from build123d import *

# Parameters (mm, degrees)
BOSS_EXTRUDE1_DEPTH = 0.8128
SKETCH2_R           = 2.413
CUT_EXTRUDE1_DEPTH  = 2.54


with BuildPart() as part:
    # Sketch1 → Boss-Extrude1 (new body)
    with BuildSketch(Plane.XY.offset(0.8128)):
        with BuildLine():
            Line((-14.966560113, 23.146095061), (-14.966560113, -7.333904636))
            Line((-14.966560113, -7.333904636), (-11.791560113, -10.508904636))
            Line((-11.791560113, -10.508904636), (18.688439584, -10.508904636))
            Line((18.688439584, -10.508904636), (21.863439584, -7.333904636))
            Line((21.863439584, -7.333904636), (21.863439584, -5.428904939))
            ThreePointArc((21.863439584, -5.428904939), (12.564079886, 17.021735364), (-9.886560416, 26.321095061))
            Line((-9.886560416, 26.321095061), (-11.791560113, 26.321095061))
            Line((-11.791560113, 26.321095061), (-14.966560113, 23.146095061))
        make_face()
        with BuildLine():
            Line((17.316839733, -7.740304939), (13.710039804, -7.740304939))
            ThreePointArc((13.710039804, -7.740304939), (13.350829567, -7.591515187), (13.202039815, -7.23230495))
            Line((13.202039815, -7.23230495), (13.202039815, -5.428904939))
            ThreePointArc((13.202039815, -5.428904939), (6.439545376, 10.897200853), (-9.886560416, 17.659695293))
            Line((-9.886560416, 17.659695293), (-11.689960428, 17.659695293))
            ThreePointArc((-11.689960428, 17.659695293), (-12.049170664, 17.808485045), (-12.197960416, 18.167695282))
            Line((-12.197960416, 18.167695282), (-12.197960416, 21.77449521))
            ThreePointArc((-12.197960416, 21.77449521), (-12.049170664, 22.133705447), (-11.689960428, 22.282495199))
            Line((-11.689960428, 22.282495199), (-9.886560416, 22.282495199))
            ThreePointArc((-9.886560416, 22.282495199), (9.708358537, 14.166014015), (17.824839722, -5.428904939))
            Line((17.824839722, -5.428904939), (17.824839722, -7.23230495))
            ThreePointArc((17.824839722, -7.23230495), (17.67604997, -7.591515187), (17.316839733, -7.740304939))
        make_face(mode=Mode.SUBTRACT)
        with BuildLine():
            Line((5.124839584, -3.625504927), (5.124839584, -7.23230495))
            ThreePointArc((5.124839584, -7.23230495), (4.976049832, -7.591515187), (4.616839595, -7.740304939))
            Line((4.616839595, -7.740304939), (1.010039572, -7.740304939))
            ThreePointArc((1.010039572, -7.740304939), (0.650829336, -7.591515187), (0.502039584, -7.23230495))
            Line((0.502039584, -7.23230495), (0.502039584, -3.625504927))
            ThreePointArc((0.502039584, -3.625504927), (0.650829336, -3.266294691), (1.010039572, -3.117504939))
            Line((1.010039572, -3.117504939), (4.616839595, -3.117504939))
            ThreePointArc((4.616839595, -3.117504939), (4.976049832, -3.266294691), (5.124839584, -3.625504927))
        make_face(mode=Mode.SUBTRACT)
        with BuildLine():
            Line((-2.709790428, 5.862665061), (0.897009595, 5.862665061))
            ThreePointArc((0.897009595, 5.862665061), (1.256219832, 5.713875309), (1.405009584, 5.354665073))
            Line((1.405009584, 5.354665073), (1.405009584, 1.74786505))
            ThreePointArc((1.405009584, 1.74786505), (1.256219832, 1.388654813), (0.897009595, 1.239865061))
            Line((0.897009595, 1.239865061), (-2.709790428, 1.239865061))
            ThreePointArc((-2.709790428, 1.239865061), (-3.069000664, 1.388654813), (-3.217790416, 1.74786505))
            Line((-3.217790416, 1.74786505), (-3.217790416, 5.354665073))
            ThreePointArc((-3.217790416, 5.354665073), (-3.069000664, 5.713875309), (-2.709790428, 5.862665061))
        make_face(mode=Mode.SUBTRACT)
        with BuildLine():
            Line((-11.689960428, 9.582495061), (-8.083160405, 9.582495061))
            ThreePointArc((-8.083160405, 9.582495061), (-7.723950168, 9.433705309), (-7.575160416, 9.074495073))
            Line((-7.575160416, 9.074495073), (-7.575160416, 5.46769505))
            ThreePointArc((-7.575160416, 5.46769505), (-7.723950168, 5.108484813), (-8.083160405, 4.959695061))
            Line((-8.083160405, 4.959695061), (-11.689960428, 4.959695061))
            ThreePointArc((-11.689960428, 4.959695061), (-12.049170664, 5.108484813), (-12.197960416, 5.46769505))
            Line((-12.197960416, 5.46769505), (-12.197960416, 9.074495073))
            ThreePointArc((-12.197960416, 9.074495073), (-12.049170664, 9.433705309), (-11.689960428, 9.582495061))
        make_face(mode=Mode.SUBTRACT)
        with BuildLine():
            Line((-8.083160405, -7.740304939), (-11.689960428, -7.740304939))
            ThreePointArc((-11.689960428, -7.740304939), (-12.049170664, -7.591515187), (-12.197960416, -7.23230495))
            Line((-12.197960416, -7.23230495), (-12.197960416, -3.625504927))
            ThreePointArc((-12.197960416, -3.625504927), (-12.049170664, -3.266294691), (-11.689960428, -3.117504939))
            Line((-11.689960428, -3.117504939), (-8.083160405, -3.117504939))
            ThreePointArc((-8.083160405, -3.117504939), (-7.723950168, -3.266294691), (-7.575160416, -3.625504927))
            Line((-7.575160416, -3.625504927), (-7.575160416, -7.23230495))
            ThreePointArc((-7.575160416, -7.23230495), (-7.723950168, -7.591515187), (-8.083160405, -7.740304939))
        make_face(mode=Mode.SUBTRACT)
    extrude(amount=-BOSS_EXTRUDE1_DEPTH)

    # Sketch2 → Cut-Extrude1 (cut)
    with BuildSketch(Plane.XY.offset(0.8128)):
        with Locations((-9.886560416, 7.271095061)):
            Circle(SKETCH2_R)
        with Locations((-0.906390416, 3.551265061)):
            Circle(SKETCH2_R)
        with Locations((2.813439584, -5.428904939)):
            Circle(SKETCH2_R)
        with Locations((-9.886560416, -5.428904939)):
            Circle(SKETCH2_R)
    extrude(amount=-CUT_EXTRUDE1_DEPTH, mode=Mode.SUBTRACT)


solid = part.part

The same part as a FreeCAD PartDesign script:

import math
import FreeCAD as App
import Part
import Sketcher
Q = App.Units.Quantity

doc = App.newDocument("Part")
body = doc.addObject("PartDesign::Body", "Body")

# Sketch on XY plane
sketch1 = body.newObject("Sketcher::SketchObject", "Sketch")
sketch1.AttachmentSupport = (doc.getObject("XY_Plane"), [""])
sketch1.MapMode = "FlatFace"
sketch1.AttachmentOffset = App.Placement(App.Vector(0, 0, 0.032 * 25.4), App.Rotation())
sketch1.addGeometry(Part.LineSegment(App.Vector(-15, 23.1, 0), App.Vector(-15, -7.3, 0)), False)
sketch1.addGeometry(Part.LineSegment(App.Vector(-15, -7.3, 0), App.Vector(-11.8, -10.5, 0)), False)
sketch1.addGeometry(Part.LineSegment(App.Vector(-11.8, -10.5, 0), App.Vector(18.7, -10.5, 0)), False)
sketch1.addGeometry(Part.LineSegment(App.Vector(18.7, -10.5, 0), App.Vector(21.9, -7.3, 0)), False)
sketch1.addGeometry(Part.LineSegment(App.Vector(21.9, -7.3, 0), App.Vector(21.9, -5.4, 0)), False)
sketch1.addGeometry(Part.ArcOfCircle(Part.Circle(App.Vector(-9.9, -5.4, 0), App.Vector(0, 0, 1), 31.8), math.radians(0), math.radians(90)), False)
sketch1.addGeometry(Part.LineSegment(App.Vector(-9.9, 26.3, 0), App.Vector(-11.8, 26.3, 0)), False)
sketch1.addGeometry(Part.LineSegment(App.Vector(-11.8, 26.3, 0), App.Vector(-15, 23.1, 0)), False)
sketch1.addGeometry(Part.ArcOfCircle(Part.Circle(App.Vector(-8.1, -7.2, 0), App.Vector(0, 0, 1), 0.5), math.radians(-90), math.radians(0)), False)
sketch1.addGeometry(Part.LineSegment(App.Vector(-8.1, -7.7, 0), App.Vector(-11.7, -7.7, 0)), False)
sketch1.addGeometry(Part.ArcOfCircle(Part.Circle(App.Vector(-11.7, -7.2, 0), App.Vector(0, 0, 1), 0.5), math.radians(180), math.radians(270)), False)
sketch1.addGeometry(Part.LineSegment(App.Vector(-12.2, -7.2, 0), App.Vector(-12.2, -3.6, 0)), False)
sketch1.addGeometry(Part.ArcOfCircle(Part.Circle(App.Vector(-11.7, -3.6, 0), App.Vector(0, 0, 1), 0.5), math.radians(90), math.radians(180)), False)
sketch1.addGeometry(Part.LineSegment(App.Vector(-11.7, -3.1, 0), App.Vector(-8.1, -3.1, 0)), False)
sketch1.addGeometry(Part.ArcOfCircle(Part.Circle(App.Vector(-8.1, -3.6, 0), App.Vector(0, 0, 1), 0.5), math.radians(0), math.radians(90)), False)
sketch1.addGeometry(Part.LineSegment(App.Vector(-7.6, -3.6, 0), App.Vector(-7.6, -7.2, 0)), False)
sketch1.addGeometry(Part.ArcOfCircle(Part.Circle(App.Vector(4.6, -3.6, 0), App.Vector(0, 0, 1), 0.5), math.radians(0), math.radians(90)), False)
sketch1.addGeometry(Part.LineSegment(App.Vector(5.1, -3.6, 0), App.Vector(5.1, -7.2, 0)), False)
sketch1.addGeometry(Part.ArcOfCircle(Part.Circle(App.Vector(4.6, -7.2, 0), App.Vector(0, 0, 1), 0.5), math.radians(-90), math.radians(0)), False)
sketch1.addGeometry(Part.LineSegment(App.Vector(4.6, -7.7, 0), App.Vector(1, -7.7, 0)), False)
sketch1.addGeometry(Part.ArcOfCircle(Part.Circle(App.Vector(1, -7.2, 0), App.Vector(0, 0, 1), 0.5), math.radians(180), math.radians(270)), False)
sketch1.addGeometry(Part.LineSegment(App.Vector(0.5, -7.2, 0), App.Vector(0.5, -3.6, 0)), False)
sketch1.addGeometry(Part.ArcOfCircle(Part.Circle(App.Vector(1, -3.6, 0), App.Vector(0, 0, 1), 0.5), math.radians(90), math.radians(180)), False)
sketch1.addGeometry(Part.LineSegment(App.Vector(1, -3.1, 0), App.Vector(4.6, -3.1, 0)), False)
sketch1.addGeometry(Part.ArcOfCircle(Part.Circle(App.Vector(-11.7, 9.1, 0), App.Vector(0, 0, 1), 0.5), math.radians(90), math.radians(180)), False)
sketch1.addGeometry(Part.LineSegment(App.Vector(-11.7, 9.6, 0), App.Vector(-8.1, 9.6, 0)), False)
sketch1.addGeometry(Part.ArcOfCircle(Part.Circle(App.Vector(-8.1, 9.1, 0), App.Vector(0, 0, 1), 0.5), math.radians(0), math.radians(90)), False)
sketch1.addGeometry(Part.LineSegment(App.Vector(-7.6, 9.1, 0), App.Vector(-7.6, 5.5, 0)), False)
sketch1.addGeometry(Part.ArcOfCircle(Part.Circle(App.Vector(-8.1, 5.5, 0), App.Vector(0, 0, 1), 0.5), math.radians(-90), math.radians(0)), False)
sketch1.addGeometry(Part.LineSegment(App.Vector(-8.1, 5, 0), App.Vector(-11.7, 5, 0)), False)
sketch1.addGeometry(Part.ArcOfCircle(Part.Circle(App.Vector(-11.7, 5.5, 0), App.Vector(0, 0, 1), 0.5), math.radians(180), math.radians(270)), False)
sketch1.addGeometry(Part.LineSegment(App.Vector(-12.2, 5.5, 0), App.Vector(-12.2, 9.1, 0)), False)
sketch1.addGeometry(Part.ArcOfCircle(Part.Circle(App.Vector(-2.7, 5.4, 0), App.Vector(0, 0, 1), 0.5), math.radians(90), math.radians(180)), False)
sketch1.addGeometry(Part.LineSegment(App.Vector(-2.7, 5.9, 0), App.Vector(0.9, 5.9, 0)), False)
sketch1.addGeometry(Part.ArcOfCircle(Part.Circle(App.Vector(0.9, 5.4, 0), App.Vector(0, 0, 1), 0.5), math.radians(0), math.radians(90)), False)
sketch1.addGeometry(Part.LineSegment(App.Vector(1.4, 5.4, 0), App.Vector(1.4, 1.7, 0)), False)
sketch1.addGeometry(Part.ArcOfCircle(Part.Circle(App.Vector(0.9, 1.7, 0), App.Vector(0, 0, 1), 0.5), math.radians(-90), math.radians(0)), False)
sketch1.addGeometry(Part.LineSegment(App.Vector(0.9, 1.2, 0), App.Vector(-2.7, 1.2, 0)), False)
sketch1.addGeometry(Part.ArcOfCircle(Part.Circle(App.Vector(-2.7, 1.7, 0), App.Vector(0, 0, 1), 0.5), math.radians(180), math.radians(270)), False)
sketch1.addGeometry(Part.LineSegment(App.Vector(-3.2, 1.7, 0), App.Vector(-3.2, 5.4, 0)), False)
sketch1.addGeometry(Part.ArcOfCircle(Part.Circle(App.Vector(17.3, -7.2, 0), App.Vector(0, 0, 1), 0.5), math.radians(-90), math.radians(0)), False)
sketch1.addGeometry(Part.LineSegment(App.Vector(17.3, -7.7, 0), App.Vector(13.7, -7.7, 0)), False)
sketch1.addGeometry(Part.ArcOfCircle(Part.Circle(App.Vector(13.7, -7.2, 0), App.Vector(0, 0, 1), 0.5), math.radians(180), math.radians(270)), False)
sketch1.addGeometry(Part.LineSegment(App.Vector(13.2, -7.2, 0), App.Vector(13.2, -5.4, 0)), False)
sketch1.addGeometry(Part.ArcOfCircle(Part.Circle(App.Vector(-9.9, -5.4, 0), App.Vector(0, 0, 1), 23.1), math.radians(0), math.radians(90)), False)
sketch1.addGeometry(Part.LineSegment(App.Vector(-9.9, 17.7, 0), App.Vector(-11.7, 17.7, 0)), False)
sketch1.addGeometry(Part.ArcOfCircle(Part.Circle(App.Vector(-11.7, 18.2, 0), App.Vector(0, 0, 1), 0.5), math.radians(180), math.radians(270)), False)
sketch1.addGeometry(Part.LineSegment(App.Vector(-12.2, 18.2, 0), App.Vector(-12.2, 21.8, 0)), False)
sketch1.addGeometry(Part.ArcOfCircle(Part.Circle(App.Vector(-11.7, 21.8, 0), App.Vector(0, 0, 1), 0.5), math.radians(90), math.radians(180)), False)
sketch1.addGeometry(Part.LineSegment(App.Vector(-11.7, 22.3, 0), App.Vector(-9.9, 22.3, 0)), False)
sketch1.addGeometry(Part.ArcOfCircle(Part.Circle(App.Vector(-9.9, -5.4, 0), App.Vector(0, 0, 1), 27.7), math.radians(0), math.radians(90)), False)
sketch1.addGeometry(Part.LineSegment(App.Vector(17.8, -5.4, 0), App.Vector(17.8, -7.2, 0)), False)
sketch1.addConstraint(Sketcher.Constraint("Coincident", 0, 2, 1, 1))
sketch1.addConstraint(Sketcher.Constraint("Coincident", 1, 2, 2, 1))
sketch1.addConstraint(Sketcher.Constraint("Coincident", 2, 2, 3, 1))
sketch1.addConstraint(Sketcher.Constraint("Coincident", 3, 2, 4, 1))
sketch1.addConstraint(Sketcher.Constraint("Tangent", 4, 2, 5, 1))
sketch1.addConstraint(Sketcher.Constraint("Tangent", 5, 2, 6, 1))
sketch1.addConstraint(Sketcher.Constraint("Coincident", 6, 2, 7, 1))
sketch1.addConstraint(Sketcher.Constraint("Coincident", 7, 2, 0, 1))
sketch1.addConstraint(Sketcher.Constraint("Tangent", 8, 1, 9, 1))
sketch1.addConstraint(Sketcher.Constraint("Tangent", 9, 2, 10, 2))
sketch1.addConstraint(Sketcher.Constraint("Tangent", 10, 1, 11, 1))
sketch1.addConstraint(Sketcher.Constraint("Tangent", 11, 2, 12, 2))
sketch1.addConstraint(Sketcher.Constraint("Tangent", 12, 1, 13, 1))
sketch1.addConstraint(Sketcher.Constraint("Tangent", 13, 2, 14, 2))
sketch1.addConstraint(Sketcher.Constraint("Tangent", 14, 1, 15, 1))
sketch1.addConstraint(Sketcher.Constraint("Tangent", 15, 2, 8, 2))
sketch1.addConstraint(Sketcher.Constraint("Tangent", 16, 1, 17, 1))
sketch1.addConstraint(Sketcher.Constraint("Tangent", 17, 2, 18, 2))
sketch1.addConstraint(Sketcher.Constraint("Tangent", 18, 1, 19, 1))
sketch1.addConstraint(Sketcher.Constraint("Tangent", 19, 2, 20, 2))
sketch1.addConstraint(Sketcher.Constraint("Tangent", 20, 1, 21, 1))
sketch1.addConstraint(Sketcher.Constraint("Tangent", 21, 2, 22, 2))
sketch1.addConstraint(Sketcher.Constraint("Tangent", 22, 1, 23, 1))
sketch1.addConstraint(Sketcher.Constraint("Tangent", 23, 2, 16, 2))
sketch1.addConstraint(Sketcher.Constraint("Tangent", 24, 1, 25, 1))
sketch1.addConstraint(Sketcher.Constraint("Tangent", 25, 2, 26, 2))
sketch1.addConstraint(Sketcher.Constraint("Tangent", 26, 1, 27, 1))
sketch1.addConstraint(Sketcher.Constraint("Tangent", 27, 2, 28, 2))
sketch1.addConstraint(Sketcher.Constraint("Tangent", 28, 1, 29, 1))
sketch1.addConstraint(Sketcher.Constraint("Tangent", 29, 2, 30, 2))
sketch1.addConstraint(Sketcher.Constraint("Tangent", 30, 1, 31, 1))
sketch1.addConstraint(Sketcher.Constraint("Tangent", 31, 2, 24, 2))
sketch1.addConstraint(Sketcher.Constraint("Tangent", 32, 1, 33, 1))
sketch1.addConstraint(Sketcher.Constraint("Tangent", 33, 2, 34, 2))
sketch1.addConstraint(Sketcher.Constraint("Tangent", 34, 1, 35, 1))
sketch1.addConstraint(Sketcher.Constraint("Tangent", 35, 2, 36, 2))
sketch1.addConstraint(Sketcher.Constraint("Tangent", 36, 1, 37, 1))
sketch1.addConstraint(Sketcher.Constraint("Tangent", 37, 2, 38, 2))
sketch1.addConstraint(Sketcher.Constraint("Tangent", 38, 1, 39, 1))
sketch1.addConstraint(Sketcher.Constraint("Tangent", 39, 2, 32, 2))
sketch1.addConstraint(Sketcher.Constraint("Tangent", 40, 1, 41, 1))
sketch1.addConstraint(Sketcher.Constraint("Tangent", 41, 2, 42, 2))
sketch1.addConstraint(Sketcher.Constraint("Tangent", 42, 1, 43, 1))
sketch1.addConstraint(Sketcher.Constraint("Tangent", 43, 2, 44, 1))
sketch1.addConstraint(Sketcher.Constraint("Tangent", 44, 2, 45, 1))
sketch1.addConstraint(Sketcher.Constraint("Tangent", 45, 2, 46, 2))
sketch1.addConstraint(Sketcher.Constraint("Tangent", 46, 1, 47, 1))
sketch1.addConstraint(Sketcher.Constraint("Tangent", 47, 2, 48, 2))
sketch1.addConstraint(Sketcher.Constraint("Tangent", 48, 1, 49, 1))
sketch1.addConstraint(Sketcher.Constraint("Tangent", 49, 2, 50, 2))
sketch1.addConstraint(Sketcher.Constraint("Tangent", 50, 1, 51, 1))
sketch1.addConstraint(Sketcher.Constraint("Tangent", 51, 2, 40, 2))
sketch1.addConstraint(Sketcher.Constraint("Vertical", 0))
sketch1.addConstraint(Sketcher.Constraint("Horizontal", 2))
sketch1.addConstraint(Sketcher.Constraint("Vertical", 4))
sketch1.addConstraint(Sketcher.Constraint("Horizontal", 6))
sketch1.addConstraint(Sketcher.Constraint("Horizontal", 9))
sketch1.addConstraint(Sketcher.Constraint("Vertical", 11))
sketch1.addConstraint(Sketcher.Constraint("Horizontal", 13))
sketch1.addConstraint(Sketcher.Constraint("Vertical", 15))
sketch1.addConstraint(Sketcher.Constraint("Vertical", 17))
sketch1.addConstraint(Sketcher.Constraint("Horizontal", 19))
sketch1.addConstraint(Sketcher.Constraint("Vertical", 21))
sketch1.addConstraint(Sketcher.Constraint("Horizontal", 23))
sketch1.addConstraint(Sketcher.Constraint("Horizontal", 25))
sketch1.addConstraint(Sketcher.Constraint("Vertical", 27))
sketch1.addConstraint(Sketcher.Constraint("Horizontal", 29))
sketch1.addConstraint(Sketcher.Constraint("Vertical", 31))
sketch1.addConstraint(Sketcher.Constraint("Horizontal", 33))
sketch1.addConstraint(Sketcher.Constraint("Vertical", 35))
sketch1.addConstraint(Sketcher.Constraint("Horizontal", 37))
sketch1.addConstraint(Sketcher.Constraint("Vertical", 39))
sketch1.addConstraint(Sketcher.Constraint("Horizontal", 41))
sketch1.addConstraint(Sketcher.Constraint("Vertical", 43))
sketch1.addConstraint(Sketcher.Constraint("Horizontal", 45))
sketch1.addConstraint(Sketcher.Constraint("Vertical", 47))
sketch1.addConstraint(Sketcher.Constraint("Horizontal", 49))
sketch1.addConstraint(Sketcher.Constraint("Vertical", 51))
sketch1.addConstraint(Sketcher.Constraint("Coincident", 44, 3, 5, 3))
sketch1.addConstraint(Sketcher.Constraint("Coincident", 50, 3, 5, 3))
sketch1.addConstraint(Sketcher.Constraint("Equal", 8, 10))
sketch1.addConstraint(Sketcher.Constraint("Equal", 10, 12))
sketch1.addConstraint(Sketcher.Constraint("Equal", 12, 14))
sketch1.addConstraint(Sketcher.Constraint("Equal", 14, 16))
sketch1.addConstraint(Sketcher.Constraint("Equal", 16, 18))
sketch1.addConstraint(Sketcher.Constraint("Equal", 18, 20))
sketch1.addConstraint(Sketcher.Constraint("Equal", 20, 22))
sketch1.addConstraint(Sketcher.Constraint("Equal", 22, 24))
sketch1.addConstraint(Sketcher.Constraint("Equal", 24, 26))
sketch1.addConstraint(Sketcher.Constraint("Equal", 26, 28))
sketch1.addConstraint(Sketcher.Constraint("Equal", 28, 30))
sketch1.addConstraint(Sketcher.Constraint("Equal", 30, 32))
sketch1.addConstraint(Sketcher.Constraint("Equal", 32, 34))
sketch1.addConstraint(Sketcher.Constraint("Equal", 34, 36))
sketch1.addConstraint(Sketcher.Constraint("Equal", 36, 38))
sketch1.addConstraint(Sketcher.Constraint("Equal", 38, 40))
sketch1.addConstraint(Sketcher.Constraint("Equal", 40, 42))
sketch1.addConstraint(Sketcher.Constraint("Equal", 42, 46))
sketch1.addConstraint(Sketcher.Constraint("Equal", 46, 48))
sketch1.addConstraint(Sketcher.Constraint("Perpendicular", 1, 3))
sketch1.addConstraint(Sketcher.Constraint("Parallel", 3, 7))
sketch1.addConstraint(Sketcher.Constraint("Horizontal", 14, 3, 16, 3))
sketch1.addConstraint(Sketcher.Constraint("Horizontal", 10, 3, 18, 3))
sketch1.addConstraint(Sketcher.Constraint("Horizontal", 20, 3, 40, 3))
sketch1.addConstraint(Sketcher.Constraint("Horizontal", 0, 2, 3, 2))
sketch1.addConstraint(Sketcher.Constraint("Vertical", 12, 3, 24, 3))
sketch1.addConstraint(Sketcher.Constraint("Vertical", 14, 3, 26, 3))
sketch1.addConstraint(Sketcher.Constraint("Vertical", 30, 3, 46, 3))
sketch1.addConstraint(Sketcher.Constraint("Vertical", 1, 2, 6, 2))
sketch1.addConstraint(Sketcher.Constraint("Equal", 13, 19))
sketch1.addConstraint(Sketcher.Constraint("Equal", 29, 33))
sketch1.addConstraint(Sketcher.Constraint("Equal", 37, 41))
sketch1.addConstraint(Sketcher.Constraint("Equal", 2, 0))
sketch1.addConstraint(Sketcher.Constraint("Equal", 6, 4))
sketch1.addConstraint(Sketcher.Constraint("Equal", 41, 11))
sketch1.addConstraint(Sketcher.Constraint("Equal", 21, 27))
sketch1.addConstraint(Sketcher.Constraint("Equal", 31, 35))
sketch1.addConstraint(Sketcher.Constraint("Equal", 49, 43))
sketch1.addConstraint(Sketcher.Constraint("Radius", 5, Q("1.25 in")))
sketch1.addConstraint(Sketcher.Constraint("Radius", 8, Q("0.02 in")))
sketch1.addConstraint(Sketcher.Constraint("DistanceX", 2, 1, 2, 2, Q("1.2 in")))
sketch1.addConstraint(Sketcher.Constraint("Radius", 44, Q("0.909 in")))
sketch1.addConstraint(Sketcher.Constraint("Radius", 50, Q("1.091 in")))
sketch1.addConstraint(Sketcher.Constraint("DistanceX", 6, 2, 6, 1, Q("0.075 in")))
sketch1.addConstraint(Sketcher.Constraint("DistanceX", 45, 2, 45, 1, Q("0.071 in")))
sketch1.addConstraint(Sketcher.Constraint("DistanceX", 5, 3, -1, 1, Q("9.88656 mm")))
sketch1.addConstraint(Sketcher.Constraint("DistanceX", -1, 1, 16, 3, Q("4.61684 mm")))
sketch1.addConstraint(Sketcher.Constraint("DistanceX", 32, 3, -1, 1, Q("2.70979 mm")))
sketch1.addConstraint(Sketcher.Constraint("DistanceY", 5, 3, -1, 1, Q("5.428905 mm")))
sketch1.addConstraint(Sketcher.Constraint("DistanceY", -1, 1, 24, 3, Q("9.074495 mm")))
sketch1.addConstraint(Sketcher.Constraint("DistanceY", -1, 1, 32, 3, Q("5.354665 mm")))
pad1 = body.newObject("PartDesign::Pad", "Pad")
pad1.Profile = sketch1
pad1.Length = Q("0.032 in")
pad1.Reversed = True

# Sketch on XY plane
sketch2 = body.newObject("Sketcher::SketchObject", "Sketch001")
sketch2.AttachmentSupport = (doc.getObject("XY_Plane"), [""])
sketch2.MapMode = "FlatFace"
sketch2.AttachmentOffset = App.Placement(App.Vector(0, 0, 0.032 * 25.4), App.Rotation())
sketch2.addGeometry(Part.Circle(App.Vector(-9.9, 7.3, 0), App.Vector(0, 0, 1), 2.4), False)
sketch2.addGeometry(Part.Circle(App.Vector(-0.9, 3.6, 0), App.Vector(0, 0, 1), 2.4), False)
sketch2.addGeometry(Part.Circle(App.Vector(2.8, -5.4, 0), App.Vector(0, 0, 1), 2.4), False)
sketch2.addGeometry(Part.Circle(App.Vector(-9.9, -5.4, 0), App.Vector(0, 0, 1), 2.4), False)
sketch2.addConstraint(Sketcher.Constraint("Equal", 0, 1))
sketch2.addConstraint(Sketcher.Constraint("Equal", 1, 2))
sketch2.addConstraint(Sketcher.Constraint("Equal", 2, 3))
sketch2.addConstraint(Sketcher.Constraint("Horizontal", 2, 3, 3, 3))
sketch2.addConstraint(Sketcher.Constraint("Vertical", 0, 3, 3, 3))
sketch2.addConstraint(Sketcher.Constraint("Diameter", 0, Q("0.19 in")))
sketch2.addConstraint(Sketcher.Constraint("DistanceX", 0, 3, 2, 3, Q("0.5 in")))
sketch2.addConstraint(Sketcher.Constraint("DistanceY", 2, 3, 0, 3, Q("0.5 in")))
sketch2.addConstraint(Sketcher.Constraint("DistanceX", 0, 3, -1, 1, Q("9.88656 mm")))
sketch2.addConstraint(Sketcher.Constraint("DistanceX", 1, 3, -1, 1, Q("0.90639 mm")))
sketch2.addConstraint(Sketcher.Constraint("DistanceY", 1, 3, 0, 3, Q("3.71983 mm")))
sketch2.addConstraint(Sketcher.Constraint("DistanceY", -1, 1, 0, 3, Q("7.271095 mm")))
pocket1 = body.newObject("PartDesign::Pocket", "Pocket")
pocket1.Profile = sketch2
pocket1.Length = Q("0.1 in")

doc.recompute()
